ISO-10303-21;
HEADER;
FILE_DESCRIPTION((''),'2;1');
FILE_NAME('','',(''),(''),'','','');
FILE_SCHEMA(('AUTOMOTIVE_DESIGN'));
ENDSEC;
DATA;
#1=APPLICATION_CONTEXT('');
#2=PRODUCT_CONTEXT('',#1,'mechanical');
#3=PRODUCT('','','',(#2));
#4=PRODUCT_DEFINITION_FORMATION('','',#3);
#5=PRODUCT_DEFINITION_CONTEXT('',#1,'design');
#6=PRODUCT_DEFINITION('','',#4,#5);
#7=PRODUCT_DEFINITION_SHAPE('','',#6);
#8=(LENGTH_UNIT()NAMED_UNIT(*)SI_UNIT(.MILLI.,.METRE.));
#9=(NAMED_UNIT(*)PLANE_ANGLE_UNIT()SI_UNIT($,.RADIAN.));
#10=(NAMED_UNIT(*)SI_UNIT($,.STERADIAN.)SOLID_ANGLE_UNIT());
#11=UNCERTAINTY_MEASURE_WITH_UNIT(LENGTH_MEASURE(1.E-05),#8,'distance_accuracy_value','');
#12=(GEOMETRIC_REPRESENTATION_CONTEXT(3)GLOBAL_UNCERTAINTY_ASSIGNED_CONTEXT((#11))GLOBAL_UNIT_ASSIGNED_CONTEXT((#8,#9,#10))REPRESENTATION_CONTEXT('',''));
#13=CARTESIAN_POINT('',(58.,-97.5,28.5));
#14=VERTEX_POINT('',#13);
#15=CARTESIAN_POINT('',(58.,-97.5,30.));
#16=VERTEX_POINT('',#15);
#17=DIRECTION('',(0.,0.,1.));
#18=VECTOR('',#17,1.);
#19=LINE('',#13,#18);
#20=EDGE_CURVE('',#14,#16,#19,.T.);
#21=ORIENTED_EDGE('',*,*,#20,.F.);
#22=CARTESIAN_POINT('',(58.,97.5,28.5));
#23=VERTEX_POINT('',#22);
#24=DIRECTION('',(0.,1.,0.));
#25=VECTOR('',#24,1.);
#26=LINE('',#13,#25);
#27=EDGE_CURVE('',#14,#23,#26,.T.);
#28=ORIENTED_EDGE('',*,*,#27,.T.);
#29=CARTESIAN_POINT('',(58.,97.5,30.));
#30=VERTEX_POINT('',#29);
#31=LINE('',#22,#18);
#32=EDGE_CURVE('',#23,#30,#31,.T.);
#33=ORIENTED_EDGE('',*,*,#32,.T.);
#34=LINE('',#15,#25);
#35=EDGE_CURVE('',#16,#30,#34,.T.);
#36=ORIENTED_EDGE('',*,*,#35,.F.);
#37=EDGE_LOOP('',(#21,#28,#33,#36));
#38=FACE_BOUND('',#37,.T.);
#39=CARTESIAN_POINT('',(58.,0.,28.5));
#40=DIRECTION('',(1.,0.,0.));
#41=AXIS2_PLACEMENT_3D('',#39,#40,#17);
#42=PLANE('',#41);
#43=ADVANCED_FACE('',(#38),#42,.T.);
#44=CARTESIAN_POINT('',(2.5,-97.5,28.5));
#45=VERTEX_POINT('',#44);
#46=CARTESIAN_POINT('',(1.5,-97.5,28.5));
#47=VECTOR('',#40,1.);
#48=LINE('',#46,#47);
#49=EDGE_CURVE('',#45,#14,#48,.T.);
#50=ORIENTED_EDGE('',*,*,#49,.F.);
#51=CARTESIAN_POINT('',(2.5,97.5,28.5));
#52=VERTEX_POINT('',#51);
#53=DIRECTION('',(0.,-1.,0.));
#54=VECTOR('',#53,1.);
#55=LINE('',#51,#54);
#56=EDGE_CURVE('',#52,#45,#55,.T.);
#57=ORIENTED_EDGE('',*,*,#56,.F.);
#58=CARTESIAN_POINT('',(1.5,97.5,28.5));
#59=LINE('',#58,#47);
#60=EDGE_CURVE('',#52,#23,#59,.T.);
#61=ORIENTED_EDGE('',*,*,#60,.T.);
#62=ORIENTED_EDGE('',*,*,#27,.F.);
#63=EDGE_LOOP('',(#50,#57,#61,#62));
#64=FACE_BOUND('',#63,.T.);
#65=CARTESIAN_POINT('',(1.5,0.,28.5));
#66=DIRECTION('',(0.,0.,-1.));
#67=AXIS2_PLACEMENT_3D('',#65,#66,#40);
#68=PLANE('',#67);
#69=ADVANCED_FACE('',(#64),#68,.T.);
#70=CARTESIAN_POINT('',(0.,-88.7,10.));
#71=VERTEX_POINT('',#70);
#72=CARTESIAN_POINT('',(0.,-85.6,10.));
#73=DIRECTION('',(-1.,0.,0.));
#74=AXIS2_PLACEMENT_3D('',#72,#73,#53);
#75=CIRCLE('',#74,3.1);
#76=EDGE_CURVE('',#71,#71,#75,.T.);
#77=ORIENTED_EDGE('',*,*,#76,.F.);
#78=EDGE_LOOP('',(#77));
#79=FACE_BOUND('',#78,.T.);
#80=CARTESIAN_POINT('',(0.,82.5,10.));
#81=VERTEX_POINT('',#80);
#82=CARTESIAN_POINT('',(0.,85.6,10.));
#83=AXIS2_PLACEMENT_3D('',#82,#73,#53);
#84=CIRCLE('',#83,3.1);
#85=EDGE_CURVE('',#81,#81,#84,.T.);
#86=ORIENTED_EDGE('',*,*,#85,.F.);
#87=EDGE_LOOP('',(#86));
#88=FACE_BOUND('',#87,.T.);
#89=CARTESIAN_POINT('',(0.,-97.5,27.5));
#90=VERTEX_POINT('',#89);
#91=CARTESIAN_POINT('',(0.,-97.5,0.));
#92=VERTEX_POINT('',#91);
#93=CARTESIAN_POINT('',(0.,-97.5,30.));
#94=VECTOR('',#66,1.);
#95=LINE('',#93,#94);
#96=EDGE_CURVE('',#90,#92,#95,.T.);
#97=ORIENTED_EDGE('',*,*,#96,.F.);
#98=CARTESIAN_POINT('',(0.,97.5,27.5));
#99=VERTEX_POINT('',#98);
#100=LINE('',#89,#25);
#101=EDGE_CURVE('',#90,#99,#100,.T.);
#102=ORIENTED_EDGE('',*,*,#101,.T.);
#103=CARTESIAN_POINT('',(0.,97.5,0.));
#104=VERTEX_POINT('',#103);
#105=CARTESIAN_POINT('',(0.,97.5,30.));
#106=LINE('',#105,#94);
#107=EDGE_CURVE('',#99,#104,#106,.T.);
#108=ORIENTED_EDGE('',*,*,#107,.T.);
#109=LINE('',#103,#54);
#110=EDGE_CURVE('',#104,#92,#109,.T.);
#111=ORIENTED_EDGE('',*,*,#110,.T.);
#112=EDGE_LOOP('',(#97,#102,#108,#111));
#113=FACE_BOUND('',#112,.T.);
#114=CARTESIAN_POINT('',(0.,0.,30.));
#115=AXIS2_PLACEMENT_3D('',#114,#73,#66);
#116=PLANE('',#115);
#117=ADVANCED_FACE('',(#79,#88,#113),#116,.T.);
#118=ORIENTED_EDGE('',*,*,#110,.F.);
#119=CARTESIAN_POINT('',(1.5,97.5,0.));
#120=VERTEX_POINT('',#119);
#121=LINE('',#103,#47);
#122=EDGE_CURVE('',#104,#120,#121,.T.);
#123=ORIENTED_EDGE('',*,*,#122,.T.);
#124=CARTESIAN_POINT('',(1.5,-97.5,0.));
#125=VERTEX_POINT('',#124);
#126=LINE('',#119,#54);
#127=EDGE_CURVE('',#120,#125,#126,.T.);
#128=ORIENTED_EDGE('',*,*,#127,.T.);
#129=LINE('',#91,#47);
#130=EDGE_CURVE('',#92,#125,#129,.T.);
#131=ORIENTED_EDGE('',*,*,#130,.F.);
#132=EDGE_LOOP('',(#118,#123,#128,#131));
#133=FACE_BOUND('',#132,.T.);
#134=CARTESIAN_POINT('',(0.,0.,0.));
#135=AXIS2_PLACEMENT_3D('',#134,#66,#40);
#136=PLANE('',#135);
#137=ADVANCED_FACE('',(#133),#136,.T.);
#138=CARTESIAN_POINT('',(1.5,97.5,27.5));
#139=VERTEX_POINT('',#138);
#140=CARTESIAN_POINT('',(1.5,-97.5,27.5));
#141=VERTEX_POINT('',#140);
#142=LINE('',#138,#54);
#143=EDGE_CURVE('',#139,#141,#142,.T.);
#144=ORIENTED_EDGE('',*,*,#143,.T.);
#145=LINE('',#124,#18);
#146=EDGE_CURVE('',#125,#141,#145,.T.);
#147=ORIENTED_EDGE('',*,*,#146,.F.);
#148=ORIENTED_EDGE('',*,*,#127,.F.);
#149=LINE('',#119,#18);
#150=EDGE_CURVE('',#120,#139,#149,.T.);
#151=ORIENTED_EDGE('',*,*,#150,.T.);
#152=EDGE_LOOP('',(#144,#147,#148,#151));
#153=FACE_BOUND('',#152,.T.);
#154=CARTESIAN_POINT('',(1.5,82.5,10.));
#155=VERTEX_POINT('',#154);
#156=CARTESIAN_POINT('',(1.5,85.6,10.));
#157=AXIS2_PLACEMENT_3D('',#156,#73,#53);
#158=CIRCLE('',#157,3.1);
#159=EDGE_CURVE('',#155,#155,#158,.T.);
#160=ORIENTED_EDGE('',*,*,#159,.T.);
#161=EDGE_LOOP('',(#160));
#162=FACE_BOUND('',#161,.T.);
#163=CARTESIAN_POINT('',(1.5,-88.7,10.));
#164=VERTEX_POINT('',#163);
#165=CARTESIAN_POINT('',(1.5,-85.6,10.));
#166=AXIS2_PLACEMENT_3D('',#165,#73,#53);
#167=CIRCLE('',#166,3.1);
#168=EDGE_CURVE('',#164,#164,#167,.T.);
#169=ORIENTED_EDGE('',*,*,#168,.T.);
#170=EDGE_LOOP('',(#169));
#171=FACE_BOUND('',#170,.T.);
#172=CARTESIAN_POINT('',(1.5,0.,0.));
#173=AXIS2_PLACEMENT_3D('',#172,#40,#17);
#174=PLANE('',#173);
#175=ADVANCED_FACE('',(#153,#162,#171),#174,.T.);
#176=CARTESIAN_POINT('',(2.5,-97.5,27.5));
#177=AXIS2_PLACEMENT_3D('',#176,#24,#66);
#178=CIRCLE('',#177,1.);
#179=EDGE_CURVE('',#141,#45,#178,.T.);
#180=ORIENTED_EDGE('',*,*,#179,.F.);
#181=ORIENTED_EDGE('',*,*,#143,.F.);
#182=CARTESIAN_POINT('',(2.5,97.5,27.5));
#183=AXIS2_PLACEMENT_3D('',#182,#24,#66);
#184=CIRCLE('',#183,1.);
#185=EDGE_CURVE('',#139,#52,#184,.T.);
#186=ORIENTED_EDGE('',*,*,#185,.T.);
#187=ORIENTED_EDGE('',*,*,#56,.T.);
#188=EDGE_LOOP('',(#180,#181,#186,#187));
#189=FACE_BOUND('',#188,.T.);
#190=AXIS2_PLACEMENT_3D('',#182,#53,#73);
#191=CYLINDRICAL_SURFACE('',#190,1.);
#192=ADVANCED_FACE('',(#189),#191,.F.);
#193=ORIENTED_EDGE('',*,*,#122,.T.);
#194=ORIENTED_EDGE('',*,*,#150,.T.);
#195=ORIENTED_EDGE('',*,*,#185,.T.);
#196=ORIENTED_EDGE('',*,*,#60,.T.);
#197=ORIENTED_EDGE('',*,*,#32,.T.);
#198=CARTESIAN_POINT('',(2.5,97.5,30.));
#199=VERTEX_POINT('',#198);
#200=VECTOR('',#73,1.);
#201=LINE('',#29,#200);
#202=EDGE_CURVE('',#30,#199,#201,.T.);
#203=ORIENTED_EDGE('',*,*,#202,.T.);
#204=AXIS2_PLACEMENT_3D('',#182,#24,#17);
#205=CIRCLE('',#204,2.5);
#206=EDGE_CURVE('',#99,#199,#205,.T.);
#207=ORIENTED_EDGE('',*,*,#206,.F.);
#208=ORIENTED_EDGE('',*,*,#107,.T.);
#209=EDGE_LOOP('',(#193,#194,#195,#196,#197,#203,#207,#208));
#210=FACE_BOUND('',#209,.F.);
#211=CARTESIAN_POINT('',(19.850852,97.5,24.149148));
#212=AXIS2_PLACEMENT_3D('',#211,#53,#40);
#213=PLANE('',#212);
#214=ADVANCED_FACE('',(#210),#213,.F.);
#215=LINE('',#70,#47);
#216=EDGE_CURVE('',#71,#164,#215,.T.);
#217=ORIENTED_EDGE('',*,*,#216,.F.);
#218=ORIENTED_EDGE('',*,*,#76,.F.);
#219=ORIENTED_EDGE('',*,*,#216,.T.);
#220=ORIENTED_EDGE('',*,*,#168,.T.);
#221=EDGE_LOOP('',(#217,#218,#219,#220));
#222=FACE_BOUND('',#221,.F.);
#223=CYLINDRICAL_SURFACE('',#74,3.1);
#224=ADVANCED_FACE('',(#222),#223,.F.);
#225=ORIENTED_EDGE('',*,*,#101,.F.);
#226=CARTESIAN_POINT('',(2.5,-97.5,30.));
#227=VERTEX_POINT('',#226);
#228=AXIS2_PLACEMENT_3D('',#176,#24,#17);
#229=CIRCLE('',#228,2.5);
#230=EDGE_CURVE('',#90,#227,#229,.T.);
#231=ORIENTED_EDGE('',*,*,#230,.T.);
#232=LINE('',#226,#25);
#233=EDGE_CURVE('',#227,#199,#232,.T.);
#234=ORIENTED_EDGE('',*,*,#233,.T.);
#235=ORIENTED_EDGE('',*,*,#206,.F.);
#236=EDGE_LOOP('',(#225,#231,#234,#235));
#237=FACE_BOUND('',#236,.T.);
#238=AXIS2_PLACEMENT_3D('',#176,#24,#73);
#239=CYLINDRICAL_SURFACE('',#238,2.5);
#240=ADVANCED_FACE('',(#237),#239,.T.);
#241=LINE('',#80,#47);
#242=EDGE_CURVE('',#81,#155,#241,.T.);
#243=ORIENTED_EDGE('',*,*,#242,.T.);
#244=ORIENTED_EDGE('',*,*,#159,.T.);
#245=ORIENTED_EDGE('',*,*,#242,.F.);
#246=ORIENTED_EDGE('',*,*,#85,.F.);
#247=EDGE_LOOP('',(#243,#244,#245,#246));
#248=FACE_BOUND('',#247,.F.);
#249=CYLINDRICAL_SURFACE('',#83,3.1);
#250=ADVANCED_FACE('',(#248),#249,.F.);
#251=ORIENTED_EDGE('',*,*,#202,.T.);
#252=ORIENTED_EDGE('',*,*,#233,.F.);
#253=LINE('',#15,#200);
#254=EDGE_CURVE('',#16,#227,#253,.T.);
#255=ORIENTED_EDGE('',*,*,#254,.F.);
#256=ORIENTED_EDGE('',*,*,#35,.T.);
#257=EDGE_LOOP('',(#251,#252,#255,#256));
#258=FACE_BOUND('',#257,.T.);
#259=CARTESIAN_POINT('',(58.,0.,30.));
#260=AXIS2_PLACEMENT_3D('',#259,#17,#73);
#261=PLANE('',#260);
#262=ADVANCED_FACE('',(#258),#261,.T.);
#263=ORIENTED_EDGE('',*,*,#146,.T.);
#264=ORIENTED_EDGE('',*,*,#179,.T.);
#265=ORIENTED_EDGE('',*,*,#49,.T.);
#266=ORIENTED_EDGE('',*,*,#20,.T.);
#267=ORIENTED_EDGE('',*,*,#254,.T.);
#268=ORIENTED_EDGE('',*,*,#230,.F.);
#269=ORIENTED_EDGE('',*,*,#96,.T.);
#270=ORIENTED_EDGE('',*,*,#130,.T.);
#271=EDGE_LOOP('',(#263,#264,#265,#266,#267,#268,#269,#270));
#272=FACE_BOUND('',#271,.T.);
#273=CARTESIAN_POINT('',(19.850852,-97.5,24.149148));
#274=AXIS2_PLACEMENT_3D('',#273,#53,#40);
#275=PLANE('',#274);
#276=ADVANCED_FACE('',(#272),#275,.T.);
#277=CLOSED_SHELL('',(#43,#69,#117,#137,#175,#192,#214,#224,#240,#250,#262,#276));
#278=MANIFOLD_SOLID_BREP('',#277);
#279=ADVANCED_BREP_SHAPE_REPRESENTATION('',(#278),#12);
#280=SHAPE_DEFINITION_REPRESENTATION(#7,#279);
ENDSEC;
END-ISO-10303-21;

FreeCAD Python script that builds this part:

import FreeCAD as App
import Part
import Sketcher
from FreeCAD import Vector
Q = App.Units.Quantity


def edges_at(feature, points):
    """Names of the edges that pass closest to the given points."""
    edges = feature.Shape.Edges
    near = lambda p: min(range(len(edges)), key=lambda i: edges[i].distToShape(Part.Vertex(*p))[0])
    return sorted({f"Edge{near(p) + 1}" for p in points})


def add_polygon(sketch, points):
    """Adds a closed chain of lines whose ends are joined by coincident constraints."""
    first, n = sketch.GeometryCount, len(points)
    for a, b in zip(points, points[1:] + points[:1]):
        sketch.addGeometry(Part.LineSegment(App.Vector(*a, 0), App.Vector(*b, 0)), False)
    for i in range(n):
        sketch.addConstraint(Sketcher.Constraint("Coincident", first + i, 2, first + (i + 1) % n, 1))

doc = App.newDocument("Part")
params = doc.addObject("Spreadsheet::Sheet", "Params")
for row, (alias, value) in enumerate([
    ("sketch1_width", "58 mm"),
    ("sketch1_height", "30 mm"),
    ("sketch1_width2", "1.5 mm"),
    ("pad1_length", "195 mm"),
    ("sketch2_diameter", "6.2 mm"),
    ("pocket1_length", "25 mm"),
    ("fillet_radius", "2.5 mm"),
    ("fillet2_radius", "1 mm"),
], start=1):
    params.set(f"A{row}", alias)
    params.set(f"B{row}", "=" + value)
    params.setAlias(f"B{row}", alias)

body = doc.addObject("PartDesign::Body", "Body")

# Sketch on XZ plane
sketch1 = doc.addObject("Sketcher::SketchObject", "Sketch")
body.addObject(sketch1)
sketch1.AttachmentSupport = (doc.XZ_Plane, [""])
sketch1.MapMode = "FlatFace"
add_polygon(sketch1, [(0, 30), (0, 0), (1.5, 0), (1.5, 28.5), (58, 28.5), (58, 30)])  # lines 0-5
sketch1.addConstraint([
    Sketcher.Constraint("Vertical", 0),
    Sketcher.Constraint("Horizontal", 1),
    Sketcher.Constraint("Vertical", 2),
    Sketcher.Constraint("Horizontal", 3),
    Sketcher.Constraint("Vertical", 4),
    Sketcher.Constraint("Horizontal", 5),
    Sketcher.Constraint("Coincident", 0, 2, -1, 1),
    Sketcher.Constraint("Equal", 1, 4),
    Sketcher.Constraint("DistanceX", 5, 2, 5, 1, Q("58 mm")),
    Sketcher.Constraint("DistanceY", 0, 2, 0, 1, Q("30 mm")),
    Sketcher.Constraint("DistanceX", 1, 1, 1, 2, Q("1.5 mm")),
])
sketch1.setExpression("Constraints[14]", "Params.sketch1_width")
sketch1.setExpression("Constraints[15]", "Params.sketch1_height")
sketch1.setExpression("Constraints[16]", "Params.sketch1_width2")
pad1 = doc.addObject("PartDesign::Pad", "Pad")
body.addObject(pad1)
pad1.Profile = sketch1
pad1.setExpression("Length", "Params.pad1_length")
pad1.Midplane = True

# Sketch on YZ plane
sketch2 = doc.addObject("Sketcher::SketchObject", "Sketch001")
body.addObject(sketch2)
sketch2.AttachmentSupport = (doc.YZ_Plane, [""])
sketch2.MapMode = "FlatFace"
sketch2.addGeometry([
    Part.Circle(Vector(85.6, 10, 0), Vector(0, 0, 1), 3.1),
    Part.Circle(Vector(-85.6, 10, 0), Vector(0, 0, 1), 3.1),
], False)
sketch2.addConstraint([
    Sketcher.Constraint("Equal", 0, 1),
    Sketcher.Constraint("Symmetric", 0, 3, 1, 3, -2),
    Sketcher.Constraint("Diameter", 0, Q("6.2 mm")),
    Sketcher.Constraint("DistanceY", -1, 1, 0, 3, Q("10 mm")),
    Sketcher.Constraint("DistanceX", -1, 1, 0, 3, Q("85.6 mm")),
])
sketch2.setExpression("Constraints[2]", "Params.sketch2_diameter")
pocket1 = doc.addObject("PartDesign::Pocket", "Pocket")
body.addObject(pocket1)
pocket1.Profile = sketch2
pocket1.setExpression("Length", "Params.pocket1_length")
pocket1.Reversed = True
doc.recompute()

fillet = doc.addObject("PartDesign::Fillet", "Fillet")
body.addObject(fillet)
fillet.Base = (pocket1, edges_at(pocket1, [(0, 0, 30)]))
fillet.setExpression("Radius", "Params.fillet_radius")
doc.recompute()

fillet2 = doc.addObject("PartDesign::Fillet", "Fillet001")
body.addObject(fillet2)
fillet2.Base = (fillet, edges_at(fillet, [(1.5, 0, 28.5)]))
fillet2.setExpression("Radius", "Params.fillet2_radius")

doc.recompute()
